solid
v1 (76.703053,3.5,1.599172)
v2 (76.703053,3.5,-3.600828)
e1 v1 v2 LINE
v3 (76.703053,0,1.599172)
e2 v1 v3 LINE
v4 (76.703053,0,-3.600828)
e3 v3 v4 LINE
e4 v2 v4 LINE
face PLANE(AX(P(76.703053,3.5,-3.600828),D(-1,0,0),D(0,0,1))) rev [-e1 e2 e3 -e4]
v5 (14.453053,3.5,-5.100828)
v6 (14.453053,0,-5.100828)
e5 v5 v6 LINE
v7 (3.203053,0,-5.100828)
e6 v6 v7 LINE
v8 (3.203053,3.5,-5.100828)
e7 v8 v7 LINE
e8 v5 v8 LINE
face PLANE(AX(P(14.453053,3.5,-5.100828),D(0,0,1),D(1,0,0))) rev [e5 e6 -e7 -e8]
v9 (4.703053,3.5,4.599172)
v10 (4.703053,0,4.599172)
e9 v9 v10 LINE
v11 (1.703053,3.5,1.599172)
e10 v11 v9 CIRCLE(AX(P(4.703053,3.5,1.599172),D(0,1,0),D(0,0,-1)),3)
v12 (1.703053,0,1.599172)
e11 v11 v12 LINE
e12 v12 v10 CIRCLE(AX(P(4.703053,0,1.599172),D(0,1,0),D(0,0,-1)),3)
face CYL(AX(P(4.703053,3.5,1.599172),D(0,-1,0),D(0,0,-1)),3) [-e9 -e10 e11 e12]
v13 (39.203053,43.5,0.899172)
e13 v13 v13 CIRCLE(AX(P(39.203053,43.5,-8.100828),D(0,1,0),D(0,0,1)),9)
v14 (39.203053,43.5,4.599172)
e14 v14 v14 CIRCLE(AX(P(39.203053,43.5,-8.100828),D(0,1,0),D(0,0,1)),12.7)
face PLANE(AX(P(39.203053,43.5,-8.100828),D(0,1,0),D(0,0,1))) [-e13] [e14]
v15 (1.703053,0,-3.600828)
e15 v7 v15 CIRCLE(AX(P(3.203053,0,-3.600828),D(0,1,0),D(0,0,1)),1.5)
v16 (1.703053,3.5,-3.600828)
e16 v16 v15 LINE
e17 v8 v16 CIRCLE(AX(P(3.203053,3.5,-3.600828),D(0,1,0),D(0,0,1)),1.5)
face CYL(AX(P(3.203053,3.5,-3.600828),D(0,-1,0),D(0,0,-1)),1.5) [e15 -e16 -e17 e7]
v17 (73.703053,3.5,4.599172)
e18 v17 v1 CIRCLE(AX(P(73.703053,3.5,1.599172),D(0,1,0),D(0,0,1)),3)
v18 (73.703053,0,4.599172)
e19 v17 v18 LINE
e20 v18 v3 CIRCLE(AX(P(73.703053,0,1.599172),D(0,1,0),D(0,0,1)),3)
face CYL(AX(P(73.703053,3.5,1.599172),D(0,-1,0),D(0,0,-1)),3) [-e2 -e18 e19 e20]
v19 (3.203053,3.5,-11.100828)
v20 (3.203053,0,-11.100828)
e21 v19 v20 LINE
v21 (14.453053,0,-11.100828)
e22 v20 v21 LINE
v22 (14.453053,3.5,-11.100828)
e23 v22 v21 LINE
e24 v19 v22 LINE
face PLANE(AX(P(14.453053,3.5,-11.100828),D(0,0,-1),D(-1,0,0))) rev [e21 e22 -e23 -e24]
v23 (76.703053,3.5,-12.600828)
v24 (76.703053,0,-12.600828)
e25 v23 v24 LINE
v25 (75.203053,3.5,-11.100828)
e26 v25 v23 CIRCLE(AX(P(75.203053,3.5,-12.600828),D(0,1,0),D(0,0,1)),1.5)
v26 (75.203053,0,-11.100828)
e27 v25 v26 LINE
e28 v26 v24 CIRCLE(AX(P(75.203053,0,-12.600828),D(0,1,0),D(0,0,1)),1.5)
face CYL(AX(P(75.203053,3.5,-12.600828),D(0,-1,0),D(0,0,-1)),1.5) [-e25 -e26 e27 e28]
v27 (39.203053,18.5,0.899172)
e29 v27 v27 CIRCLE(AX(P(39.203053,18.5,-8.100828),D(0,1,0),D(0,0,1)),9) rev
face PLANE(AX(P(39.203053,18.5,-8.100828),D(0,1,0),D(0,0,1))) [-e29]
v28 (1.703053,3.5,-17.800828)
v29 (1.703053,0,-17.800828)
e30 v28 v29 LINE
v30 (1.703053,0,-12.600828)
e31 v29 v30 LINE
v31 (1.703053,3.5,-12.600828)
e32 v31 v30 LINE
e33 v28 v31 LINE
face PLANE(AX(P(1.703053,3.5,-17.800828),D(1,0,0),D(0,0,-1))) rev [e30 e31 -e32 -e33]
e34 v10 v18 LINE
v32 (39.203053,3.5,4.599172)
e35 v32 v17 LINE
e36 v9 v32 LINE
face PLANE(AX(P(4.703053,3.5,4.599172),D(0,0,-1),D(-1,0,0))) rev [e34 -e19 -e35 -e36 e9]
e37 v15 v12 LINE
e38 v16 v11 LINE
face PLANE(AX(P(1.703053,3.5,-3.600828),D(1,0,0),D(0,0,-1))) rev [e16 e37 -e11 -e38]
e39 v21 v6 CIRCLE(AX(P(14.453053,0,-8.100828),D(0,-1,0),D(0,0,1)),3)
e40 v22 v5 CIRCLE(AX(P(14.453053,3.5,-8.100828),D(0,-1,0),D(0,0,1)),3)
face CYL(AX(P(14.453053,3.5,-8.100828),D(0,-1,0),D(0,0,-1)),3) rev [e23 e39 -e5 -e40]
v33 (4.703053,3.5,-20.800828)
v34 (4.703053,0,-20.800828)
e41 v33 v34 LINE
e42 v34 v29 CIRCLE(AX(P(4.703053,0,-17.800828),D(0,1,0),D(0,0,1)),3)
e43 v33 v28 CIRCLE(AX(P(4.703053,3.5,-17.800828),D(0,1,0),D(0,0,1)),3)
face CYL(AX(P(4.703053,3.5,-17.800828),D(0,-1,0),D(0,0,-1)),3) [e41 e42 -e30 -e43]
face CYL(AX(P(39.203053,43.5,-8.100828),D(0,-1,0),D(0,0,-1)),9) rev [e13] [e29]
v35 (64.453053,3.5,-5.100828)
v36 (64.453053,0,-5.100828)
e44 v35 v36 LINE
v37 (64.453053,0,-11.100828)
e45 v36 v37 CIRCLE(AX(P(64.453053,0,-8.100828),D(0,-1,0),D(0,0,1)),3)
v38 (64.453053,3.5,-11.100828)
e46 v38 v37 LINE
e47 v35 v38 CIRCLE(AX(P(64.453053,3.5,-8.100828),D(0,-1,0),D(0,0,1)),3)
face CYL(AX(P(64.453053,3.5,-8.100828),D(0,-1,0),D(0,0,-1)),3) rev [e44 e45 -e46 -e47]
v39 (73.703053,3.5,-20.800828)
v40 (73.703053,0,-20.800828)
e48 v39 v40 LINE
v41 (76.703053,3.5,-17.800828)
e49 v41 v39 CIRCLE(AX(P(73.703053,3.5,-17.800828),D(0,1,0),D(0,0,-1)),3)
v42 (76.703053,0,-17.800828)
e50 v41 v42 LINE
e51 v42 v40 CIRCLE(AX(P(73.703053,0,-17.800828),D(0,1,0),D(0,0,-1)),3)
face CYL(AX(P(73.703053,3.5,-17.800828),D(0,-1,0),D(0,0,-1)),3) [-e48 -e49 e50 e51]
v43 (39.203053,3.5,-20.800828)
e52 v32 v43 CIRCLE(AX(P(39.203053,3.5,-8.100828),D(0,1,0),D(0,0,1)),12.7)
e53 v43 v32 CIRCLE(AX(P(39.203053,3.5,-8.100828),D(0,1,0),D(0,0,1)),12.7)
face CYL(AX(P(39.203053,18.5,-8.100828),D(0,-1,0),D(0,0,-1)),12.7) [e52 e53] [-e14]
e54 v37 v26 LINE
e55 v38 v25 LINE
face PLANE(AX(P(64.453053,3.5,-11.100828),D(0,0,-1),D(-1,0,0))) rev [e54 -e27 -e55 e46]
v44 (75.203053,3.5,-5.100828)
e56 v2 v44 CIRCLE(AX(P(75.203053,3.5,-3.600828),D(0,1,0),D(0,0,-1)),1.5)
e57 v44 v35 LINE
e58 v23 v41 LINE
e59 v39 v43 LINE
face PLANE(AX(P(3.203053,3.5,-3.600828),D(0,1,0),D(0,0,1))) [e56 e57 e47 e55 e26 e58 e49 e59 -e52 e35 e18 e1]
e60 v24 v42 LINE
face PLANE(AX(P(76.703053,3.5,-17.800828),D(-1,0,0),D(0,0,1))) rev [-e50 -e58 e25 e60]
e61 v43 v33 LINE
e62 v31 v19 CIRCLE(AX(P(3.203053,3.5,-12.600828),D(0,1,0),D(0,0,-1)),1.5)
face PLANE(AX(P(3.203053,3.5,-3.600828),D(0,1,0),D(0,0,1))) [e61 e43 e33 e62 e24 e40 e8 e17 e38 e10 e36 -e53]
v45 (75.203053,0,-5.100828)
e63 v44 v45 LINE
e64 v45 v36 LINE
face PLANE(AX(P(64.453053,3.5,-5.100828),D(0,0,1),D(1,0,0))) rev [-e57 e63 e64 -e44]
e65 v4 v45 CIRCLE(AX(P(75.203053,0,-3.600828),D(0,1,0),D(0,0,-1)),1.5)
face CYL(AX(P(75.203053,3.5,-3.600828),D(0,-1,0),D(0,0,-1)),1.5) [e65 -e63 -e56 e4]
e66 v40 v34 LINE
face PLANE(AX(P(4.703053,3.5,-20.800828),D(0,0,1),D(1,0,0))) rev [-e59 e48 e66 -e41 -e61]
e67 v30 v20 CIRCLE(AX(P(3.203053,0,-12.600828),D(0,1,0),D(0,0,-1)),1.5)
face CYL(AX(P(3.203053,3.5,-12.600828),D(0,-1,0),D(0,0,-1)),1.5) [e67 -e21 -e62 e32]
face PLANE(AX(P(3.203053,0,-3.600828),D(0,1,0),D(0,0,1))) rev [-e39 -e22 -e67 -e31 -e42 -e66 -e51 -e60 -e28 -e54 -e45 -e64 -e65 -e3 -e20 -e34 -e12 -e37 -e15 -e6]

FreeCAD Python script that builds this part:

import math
import FreeCAD as App
import Part
import Sketcher
from FreeCAD import Vector

doc = App.newDocument("Part")
body = doc.addObject("PartDesign::Body", "Body")

sketch1 = body.newObject("Sketcher::SketchObject", "Sketch")
sketch1.AttachmentSupport = (doc.getObject("XZ_Plane"), [""])
sketch1.MapMode = "FlatFace"
sketch1.addGeometry([
    Part.LineSegment(Vector(64.5, -11.1, 0), Vector(75.2, -11.1, 0)),
    Part.ArcOfCircle(Part.Circle(Vector(75.2, -12.6, 0), Vector(0, 0, 1), 1.5), math.radians(0), math.radians(90)),
    Part.LineSegment(Vector(76.7, -12.6, 0), Vector(76.7, -17.8, 0)),
    Part.ArcOfCircle(Part.Circle(Vector(73.7, -17.8, 0), Vector(0, 0, 1), 3), math.radians(-90), math.radians(0)),
    Part.LineSegment(Vector(73.7, -20.8, 0), Vector(4.7, -20.8, 0)),
    Part.ArcOfCircle(Part.Circle(Vector(4.7, -17.8, 0), Vector(0, 0, 1), 3), math.radians(180), math.radians(270)),
    Part.LineSegment(Vector(1.7, -17.8, 0), Vector(1.7, -12.6, 0)),
    Part.ArcOfCircle(Part.Circle(Vector(3.2, -12.6, 0), Vector(0, 0, 1), 1.5), math.radians(90), math.radians(180)),
    Part.LineSegment(Vector(3.2, -11.1, 0), Vector(14.5, -11.1, 0)),
    Part.ArcOfCircle(Part.Circle(Vector(14.5, -8.1, 0), Vector(0, 0, 1), 3), math.radians(-90), math.radians(90)),
    Part.LineSegment(Vector(14.5, -5.1, 0), Vector(3.2, -5.1, 0)),
    Part.ArcOfCircle(Part.Circle(Vector(3.2, -3.6, 0), Vector(0, 0, 1), 1.5), math.radians(-180), math.radians(-90)),
    Part.LineSegment(Vector(1.7, -3.6, 0), Vector(1.7, 1.6, 0)),
    Part.ArcOfCircle(Part.Circle(Vector(4.7, 1.6, 0), Vector(0, 0, 1), 3), math.radians(90), math.radians(180)),
    Part.LineSegment(Vector(4.7, 4.6, 0), Vector(73.7, 4.6, 0)),
    Part.ArcOfCircle(Part.Circle(Vector(73.7, 1.6, 0), Vector(0, 0, 1), 3), math.radians(0), math.radians(90)),
    Part.LineSegment(Vector(76.7, 1.6, 0), Vector(76.7, -3.6, 0)),
    Part.ArcOfCircle(Part.Circle(Vector(75.2, -3.6, 0), Vector(0, 0, 1), 1.5), math.radians(-90), math.radians(0)),
    Part.LineSegment(Vector(75.2, -5.1, 0), Vector(64.5, -5.1, 0)),
    Part.ArcOfCircle(Part.Circle(Vector(64.5, -8.1, 0), Vector(0, 0, 1), 3), math.radians(90), math.radians(270)),
], False)
sketch1.addConstraint([
    Sketcher.Constraint("Tangent", 0, 2, 1, 2),
    Sketcher.Constraint("Tangent", 1, 1, 2, 1),
    Sketcher.Constraint("Tangent", 2, 2, 3, 2),
    Sketcher.Constraint("Tangent", 3, 1, 4, 1),
    Sketcher.Constraint("Tangent", 4, 2, 5, 2),
    Sketcher.Constraint("Tangent", 5, 1, 6, 1),
    Sketcher.Constraint("Tangent", 6, 2, 7, 2),
    Sketcher.Constraint("Tangent", 7, 1, 8, 1),
    Sketcher.Constraint("Tangent", 8, 2, 9, 1),
    Sketcher.Constraint("Tangent", 9, 2, 10, 1),
    Sketcher.Constraint("Tangent", 10, 2, 11, 2),
    Sketcher.Constraint("Tangent", 11, 1, 12, 1),
    Sketcher.Constraint("Tangent", 12, 2, 13, 2),
    Sketcher.Constraint("Tangent", 13, 1, 14, 1),
    Sketcher.Constraint("Tangent", 14, 2, 15, 2),
    Sketcher.Constraint("Tangent", 15, 1, 16, 1),
    Sketcher.Constraint("Tangent", 16, 2, 17, 2),
    Sketcher.Constraint("Tangent", 17, 1, 18, 1),
    Sketcher.Constraint("Tangent", 18, 2, 19, 1),
    Sketcher.Constraint("Tangent", 19, 2, 0, 1),
    Sketcher.Constraint("Horizontal", 0),
    Sketcher.Constraint("Vertical", 2),
    Sketcher.Constraint("Horizontal", 4),
    Sketcher.Constraint("Vertical", 6),
    Sketcher.Constraint("Horizontal", 8),
    Sketcher.Constraint("Horizontal", 10),
    Sketcher.Constraint("Vertical", 12),
    Sketcher.Constraint("Horizontal", 14),
    Sketcher.Constraint("Vertical", 16),
    Sketcher.Constraint("Horizontal", 18),
    Sketcher.Constraint("Equal", 3, 5),
    Sketcher.Constraint("Equal", 1, 7),
    Sketcher.Constraint("Equal", 5, 9),
    Sketcher.Constraint("Equal", 7, 11),
    Sketcher.Constraint("Equal", 9, 13),
    Sketcher.Constraint("Equal", 13, 15),
    Sketcher.Constraint("Equal", 11, 17),
    Sketcher.Constraint("Equal", 15, 19),
    Sketcher.Constraint("Horizontal", 1, 3, 7, 3),
    Sketcher.Constraint("Vertical", 7, 3, 11, 3),
    Sketcher.Constraint("Vertical", 3, 3, 15, 3),
    Sketcher.Constraint("Equal", 6, 12),
    Sketcher.Constraint("Radius", 3, 3.0),
    Sketcher.Constraint("Radius", 1, 1.5),
    Sketcher.Constraint("DistanceX", 4, 2, 4, 1, 69.0),
    Sketcher.Constraint("DistanceY", 2, 2, 2, 1, 5.2),
    Sketcher.Constraint("DistanceX", 9, 3, 19, 3, 50.0),
    Sketcher.Constraint("DistanceX", 0, 1, 0, 2, 10.75),
    Sketcher.Constraint("DistanceX", -1, 1, 1, 3, 75.203053),
    Sketcher.Constraint("DistanceY", 1, 3, -1, 1, 12.600828),
])
pad1 = body.newObject("PartDesign::Pad", "Pad")
pad1.Profile = sketch1
pad1.Length = 3.5
pad1.Reversed = True

sketch2 = body.newObject("Sketcher::SketchObject", "Sketch001")
sketch2.AttachmentSupport = (doc.getObject("XZ_Plane"), [""])
sketch2.MapMode = "FlatFace"
sketch2.AttachmentOffset = App.Placement(Vector(0, 0, -3.5), App.Rotation())
sketch2.addGeometry(Part.Circle(Vector(39, -8, 0), Vector(0, 0, 1), 13), False)
sketch2.addConstraint([
    Sketcher.Constraint("Diameter", 0, 25.4),
    Sketcher.Constraint("DistanceX", -1, 1, 0, 3, 39.203053),
    Sketcher.Constraint("DistanceY", 0, 3, -1, 1, 8.100828),
])
pad2 = body.newObject("PartDesign::Pad", "Pad001")
pad2.Profile = sketch2
pad2.Length = 15
pad2.Reversed = True

sketch3 = body.newObject("Sketcher::SketchObject", "Sketch002")
sketch3.AttachmentSupport = (doc.getObject("XZ_Plane"), [""])
sketch3.MapMode = "FlatFace"
sketch3.AttachmentOffset = App.Placement(Vector(0, 0, -18.5), App.Rotation())
sketch3.addGeometry([
    Part.Circle(Vector(39, -8, 0), Vector(0, 0, 1), 13),
    Part.Circle(Vector(39, -8, 0), Vector(0, 0, 1), 9),
], False)
sketch3.addConstraint([
    Sketcher.Constraint("Coincident", 1, 3, 0, 3),
    Sketcher.Constraint("Diameter", 1, 18.0),
    Sketcher.Constraint("Diameter", 0, 25.4),
    Sketcher.Constraint("DistanceX", -1, 1, 0, 3, 39.203053),
    Sketcher.Constraint("DistanceY", 0, 3, -1, 1, 8.100828),
])
pad3 = body.newObject("PartDesign::Pad", "Pad002")
pad3.Profile = sketch3
pad3.Length = 25
pad3.Reversed = True

doc.recompute()
